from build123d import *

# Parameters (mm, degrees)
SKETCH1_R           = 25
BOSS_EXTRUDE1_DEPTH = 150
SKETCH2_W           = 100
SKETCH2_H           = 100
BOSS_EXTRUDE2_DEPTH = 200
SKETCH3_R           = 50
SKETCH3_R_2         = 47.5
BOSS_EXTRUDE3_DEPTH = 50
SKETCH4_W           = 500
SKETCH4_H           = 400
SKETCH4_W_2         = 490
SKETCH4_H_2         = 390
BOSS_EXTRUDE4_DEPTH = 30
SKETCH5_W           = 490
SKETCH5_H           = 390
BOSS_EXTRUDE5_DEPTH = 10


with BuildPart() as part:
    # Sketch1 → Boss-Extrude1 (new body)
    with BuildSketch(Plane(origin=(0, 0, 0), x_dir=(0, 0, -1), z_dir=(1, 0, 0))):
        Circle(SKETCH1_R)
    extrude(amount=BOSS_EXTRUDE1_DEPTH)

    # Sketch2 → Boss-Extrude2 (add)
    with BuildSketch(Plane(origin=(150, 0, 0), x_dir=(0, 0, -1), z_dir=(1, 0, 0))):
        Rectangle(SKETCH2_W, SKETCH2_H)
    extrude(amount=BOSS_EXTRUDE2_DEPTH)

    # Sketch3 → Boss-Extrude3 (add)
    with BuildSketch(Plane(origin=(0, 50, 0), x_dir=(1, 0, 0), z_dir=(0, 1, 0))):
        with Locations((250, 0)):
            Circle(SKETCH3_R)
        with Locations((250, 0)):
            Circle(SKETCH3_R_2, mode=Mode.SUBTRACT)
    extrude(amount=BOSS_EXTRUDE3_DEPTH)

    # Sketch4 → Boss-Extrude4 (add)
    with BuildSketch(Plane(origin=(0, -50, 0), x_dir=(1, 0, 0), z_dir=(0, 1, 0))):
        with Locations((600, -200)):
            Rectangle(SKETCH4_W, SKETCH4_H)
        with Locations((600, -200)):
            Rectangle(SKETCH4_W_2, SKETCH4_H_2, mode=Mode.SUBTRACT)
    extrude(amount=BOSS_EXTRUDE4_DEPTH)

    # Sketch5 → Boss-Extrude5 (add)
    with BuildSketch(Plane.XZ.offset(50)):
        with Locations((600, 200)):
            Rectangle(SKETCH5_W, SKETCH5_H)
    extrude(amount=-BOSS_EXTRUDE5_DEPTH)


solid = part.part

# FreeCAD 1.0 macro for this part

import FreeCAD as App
import Part
import Sketcher

V = App.Vector

doc = App.newDocument("Part")
body = doc.addObject("PartDesign::Body", "Body")

# Sketch on YZ plane
sketch1 = body.newObject("Sketcher::SketchObject", "Sketch")
sketch1.AttachmentSupport = (doc.getObject("YZ_Plane"), [""])
sketch1.MapMode = "FlatFace"
sketch1.addGeometry(Part.Circle(V(0, 0, 0), V(0, 0, 1), 25), False)
sketch1.addConstraint(Sketcher.Constraint("Coincident", 0, 3, -1, 1))
sketch1.addConstraint(Sketcher.Constraint("Diameter", 0, 50.0))
pad1 = body.newObject("PartDesign::Pad", "Pad")
pad1.Profile = sketch1
pad1.Length = 150

# Sketch on YZ plane
sketch2 = body.newObject("Sketcher::SketchObject", "Sketch001")
sketch2.AttachmentSupport = (doc.getObject("YZ_Plane"), [""])
sketch2.MapMode = "FlatFace"
sketch2.AttachmentOffset = App.Placement(V(0, 0, 150), App.Rotation())
sketch2.addGeometry(Part.LineSegment(V(50, 50, 0), V(-50, 50, 0)), False)
sketch2.addGeometry(Part.LineSegment(V(-50, 50, 0), V(-50, -50, 0)), False)
sketch2.addGeometry(Part.LineSegment(V(-50, -50, 0), V(50, -50, 0)), False)
sketch2.addGeometry(Part.LineSegment(V(50, -50, 0), V(50, 50, 0)), False)
sketch2.addConstraint(Sketcher.Constraint("Coincident", 0, 2, 1, 1))
sketch2.addConstraint(Sketcher.Constraint("Coincident", 1, 2, 2, 1))
sketch2.addConstraint(Sketcher.Constraint("Coincident", 2, 2, 3, 1))
sketch2.addConstraint(Sketcher.Constraint("Coincident", 3, 2, 0, 1))
sketch2.addConstraint(Sketcher.Constraint("Horizontal", 0))
sketch2.addConstraint(Sketcher.Constraint("Vertical", 1))
sketch2.addConstraint(Sketcher.Constraint("Horizontal", 2))
sketch2.addConstraint(Sketcher.Constraint("Vertical", 3))
sketch2.addConstraint(Sketcher.Constraint("Symmetric", 0, 2, 2, 2, -1, 1))
sketch2.addConstraint(Sketcher.Constraint("Equal", 2, 1))
sketch2.addConstraint(Sketcher.Constraint("DistanceX", 0, 2, 0, 1, 100.0))
pad2 = body.newObject("PartDesign::Pad", "Pad001")
pad2.Profile = sketch2
pad2.Length = 200

# Sketch on XZ plane
sketch3 = body.newObject("Sketcher::SketchObject", "Sketch002")
sketch3.AttachmentSupport = (doc.getObject("XZ_Plane"), [""])
sketch3.MapMode = "FlatFace"
sketch3.AttachmentOffset = App.Placement(V(0, 0, -50), App.Rotation())
sketch3.addGeometry(Part.Circle(V(250, 0, 0), V(0, 0, 1), 50), False)
sketch3.addGeometry(Part.Circle(V(250, 0, 0), V(0, 0, 1), 48), False)
sketch3.addConstraint(Sketcher.Constraint("Coincident", 1, 3, 0, 3))
sketch3.addConstraint(Sketcher.Constraint("PointOnObject", 0, 3, -1))
sketch3.addConstraint(Sketcher.Constraint("Diameter", 0, 100.0))
sketch3.addConstraint(Sketcher.Constraint("Diameter", 1, 95.0))
sketch3.addConstraint(Sketcher.Constraint("DistanceX", -1, 1, 0, 3, 250.0))
pad3 = body.newObject("PartDesign::Pad", "Pad002")
pad3.Profile = sketch3
pad3.Length = 50
pad3.Reversed = True

# Sketch on XZ plane
sketch4 = body.newObject("Sketcher::SketchObject", "Sketch003")
sketch4.AttachmentSupport = (doc.getObject("XZ_Plane"), [""])
sketch4.MapMode = "FlatFace"
sketch4.AttachmentOffset = App.Placement(V(0, 0, 50), App.Rotation())
sketch4.addGeometry(Part.LineSegment(V(350, 0, 0), V(350, 400, 0)), False)
sketch4.addGeometry(Part.LineSegment(V(350, 400, 0), V(850, 400, 0)), False)
sketch4.addGeometry(Part.LineSegment(V(850, 400, 0), V(850, 0, 0)), False)
sketch4.addGeometry(Part.LineSegment(V(850, 0, 0), V(350, 0, 0)), False)
sketch4.addGeometry(Part.LineSegment(V(845, 395, 0), V(355, 395, 0)), False)
sketch4.addGeometry(Part.LineSegment(V(355, 395, 0), V(355, 5, 0)), False)
sketch4.addGeometry(Part.LineSegment(V(355, 5, 0), V(845, 5, 0)), False)
sketch4.addGeometry(Part.LineSegment(V(845, 5, 0), V(845, 395, 0)), False)
sketch4.addConstraint(Sketcher.Constraint("Coincident", 0, 2, 1, 1))
sketch4.addConstraint(Sketcher.Constraint("Coincident", 1, 2, 2, 1))
sketch4.addConstraint(Sketcher.Constraint("Coincident", 2, 2, 3, 1))
sketch4.addConstraint(Sketcher.Constraint("Coincident", 3, 2, 0, 1))
sketch4.addConstraint(Sketcher.Constraint("Coincident", 4, 2, 5, 1))
sketch4.addConstraint(Sketcher.Constraint("Coincident", 5, 2, 6, 1))
sketch4.addConstraint(Sketcher.Constraint("Coincident", 6, 2, 7, 1))
sketch4.addConstraint(Sketcher.Constraint("Coincident", 7, 2, 4, 1))
sketch4.addConstraint(Sketcher.Constraint("Vertical", 0))
sketch4.addConstraint(Sketcher.Constraint("Horizontal", 1))
sketch4.addConstraint(Sketcher.Constraint("Vertical", 2))
sketch4.addConstraint(Sketcher.Constraint("Horizontal", 3))
sketch4.addConstraint(Sketcher.Constraint("Horizontal", 4))
sketch4.addConstraint(Sketcher.Constraint("Vertical", 5))
sketch4.addConstraint(Sketcher.Constraint("Horizontal", 6))
sketch4.addConstraint(Sketcher.Constraint("Vertical", 7))
sketch4.addConstraint(Sketcher.Constraint("PointOnObject", 2, 2, -1))
sketch4.addConstraint(Sketcher.Constraint("DistanceX", 1, 1, 1, 2, 500.0))
sketch4.addConstraint(Sketcher.Constraint("DistanceX", 4, 2, 4, 1, 490.0))
sketch4.addConstraint(Sketcher.Constraint("DistanceY", 0, 1, 0, 2, 400.0))
sketch4.addConstraint(Sketcher.Constraint("DistanceY", 5, 2, 5, 1, 390.0))
sketch4.addConstraint(Sketcher.Constraint("DistanceX", -1, 1, 0, 2, 350.0))
sketch4.addConstraint(Sketcher.Constraint("DistanceX", -1, 1, 4, 2, 355.0))
sketch4.addConstraint(Sketcher.Constraint("DistanceY", -1, 1, 4, 2, 395.0))
pad4 = body.newObject("PartDesign::Pad", "Pad003")
pad4.Profile = sketch4
pad4.Length = 30
pad4.Reversed = True

# Sketch on XZ plane
sketch5 = body.newObject("Sketcher::SketchObject", "Sketch004")
sketch5.AttachmentSupport = (doc.getObject("XZ_Plane"), [""])
sketch5.MapMode = "FlatFace"
sketch5.AttachmentOffset = App.Placement(V(0, 0, 50), App.Rotation())
sketch5.addGeometry(Part.LineSegment(V(355, 395, 0), V(355, 5, 0)), False)
sketch5.addGeometry(Part.LineSegment(V(355, 5, 0), V(845, 5, 0)), False)
sketch5.addGeometry(Part.LineSegment(V(845, 5, 0), V(845, 395, 0)), False)
sketch5.addGeometry(Part.LineSegment(V(845, 395, 0), V(355, 395, 0)), False)
sketch5.addConstraint(Sketcher.Constraint("Coincident", 0, 2, 1, 1))
sketch5.addConstraint(Sketcher.Constraint("Coincident", 1, 2, 2, 1))
sketch5.addConstraint(Sketcher.Constraint("Coincident", 2, 2, 3, 1))
sketch5.addConstraint(Sketcher.Constraint("Coincident", 3, 2, 0, 1))
sketch5.addConstraint(Sketcher.Constraint("Vertical", 0))
sketch5.addConstraint(Sketcher.Constraint("Horizontal", 1))
sketch5.addConstraint(Sketcher.Constraint("Vertical", 2))
sketch5.addConstraint(Sketcher.Constraint("Horizontal", 3))
sketch5.addConstraint(Sketcher.Constraint("DistanceX", 1, 1, 1, 2, 490.0))
sketch5.addConstraint(Sketcher.Constraint("DistanceY", 0, 2, 0, 1, 390.0))
sketch5.addConstraint(Sketcher.Constraint("DistanceX", -1, 1, 0, 2, 355.0))
sketch5.addConstraint(Sketcher.Constraint("DistanceY", -1, 1, 0, 2, 5.0))
pad5 = body.newObject("PartDesign::Pad", "Pad004")
pad5.Profile = sketch5
pad5.Length = 10
pad5.Reversed = True

doc.recompute()
